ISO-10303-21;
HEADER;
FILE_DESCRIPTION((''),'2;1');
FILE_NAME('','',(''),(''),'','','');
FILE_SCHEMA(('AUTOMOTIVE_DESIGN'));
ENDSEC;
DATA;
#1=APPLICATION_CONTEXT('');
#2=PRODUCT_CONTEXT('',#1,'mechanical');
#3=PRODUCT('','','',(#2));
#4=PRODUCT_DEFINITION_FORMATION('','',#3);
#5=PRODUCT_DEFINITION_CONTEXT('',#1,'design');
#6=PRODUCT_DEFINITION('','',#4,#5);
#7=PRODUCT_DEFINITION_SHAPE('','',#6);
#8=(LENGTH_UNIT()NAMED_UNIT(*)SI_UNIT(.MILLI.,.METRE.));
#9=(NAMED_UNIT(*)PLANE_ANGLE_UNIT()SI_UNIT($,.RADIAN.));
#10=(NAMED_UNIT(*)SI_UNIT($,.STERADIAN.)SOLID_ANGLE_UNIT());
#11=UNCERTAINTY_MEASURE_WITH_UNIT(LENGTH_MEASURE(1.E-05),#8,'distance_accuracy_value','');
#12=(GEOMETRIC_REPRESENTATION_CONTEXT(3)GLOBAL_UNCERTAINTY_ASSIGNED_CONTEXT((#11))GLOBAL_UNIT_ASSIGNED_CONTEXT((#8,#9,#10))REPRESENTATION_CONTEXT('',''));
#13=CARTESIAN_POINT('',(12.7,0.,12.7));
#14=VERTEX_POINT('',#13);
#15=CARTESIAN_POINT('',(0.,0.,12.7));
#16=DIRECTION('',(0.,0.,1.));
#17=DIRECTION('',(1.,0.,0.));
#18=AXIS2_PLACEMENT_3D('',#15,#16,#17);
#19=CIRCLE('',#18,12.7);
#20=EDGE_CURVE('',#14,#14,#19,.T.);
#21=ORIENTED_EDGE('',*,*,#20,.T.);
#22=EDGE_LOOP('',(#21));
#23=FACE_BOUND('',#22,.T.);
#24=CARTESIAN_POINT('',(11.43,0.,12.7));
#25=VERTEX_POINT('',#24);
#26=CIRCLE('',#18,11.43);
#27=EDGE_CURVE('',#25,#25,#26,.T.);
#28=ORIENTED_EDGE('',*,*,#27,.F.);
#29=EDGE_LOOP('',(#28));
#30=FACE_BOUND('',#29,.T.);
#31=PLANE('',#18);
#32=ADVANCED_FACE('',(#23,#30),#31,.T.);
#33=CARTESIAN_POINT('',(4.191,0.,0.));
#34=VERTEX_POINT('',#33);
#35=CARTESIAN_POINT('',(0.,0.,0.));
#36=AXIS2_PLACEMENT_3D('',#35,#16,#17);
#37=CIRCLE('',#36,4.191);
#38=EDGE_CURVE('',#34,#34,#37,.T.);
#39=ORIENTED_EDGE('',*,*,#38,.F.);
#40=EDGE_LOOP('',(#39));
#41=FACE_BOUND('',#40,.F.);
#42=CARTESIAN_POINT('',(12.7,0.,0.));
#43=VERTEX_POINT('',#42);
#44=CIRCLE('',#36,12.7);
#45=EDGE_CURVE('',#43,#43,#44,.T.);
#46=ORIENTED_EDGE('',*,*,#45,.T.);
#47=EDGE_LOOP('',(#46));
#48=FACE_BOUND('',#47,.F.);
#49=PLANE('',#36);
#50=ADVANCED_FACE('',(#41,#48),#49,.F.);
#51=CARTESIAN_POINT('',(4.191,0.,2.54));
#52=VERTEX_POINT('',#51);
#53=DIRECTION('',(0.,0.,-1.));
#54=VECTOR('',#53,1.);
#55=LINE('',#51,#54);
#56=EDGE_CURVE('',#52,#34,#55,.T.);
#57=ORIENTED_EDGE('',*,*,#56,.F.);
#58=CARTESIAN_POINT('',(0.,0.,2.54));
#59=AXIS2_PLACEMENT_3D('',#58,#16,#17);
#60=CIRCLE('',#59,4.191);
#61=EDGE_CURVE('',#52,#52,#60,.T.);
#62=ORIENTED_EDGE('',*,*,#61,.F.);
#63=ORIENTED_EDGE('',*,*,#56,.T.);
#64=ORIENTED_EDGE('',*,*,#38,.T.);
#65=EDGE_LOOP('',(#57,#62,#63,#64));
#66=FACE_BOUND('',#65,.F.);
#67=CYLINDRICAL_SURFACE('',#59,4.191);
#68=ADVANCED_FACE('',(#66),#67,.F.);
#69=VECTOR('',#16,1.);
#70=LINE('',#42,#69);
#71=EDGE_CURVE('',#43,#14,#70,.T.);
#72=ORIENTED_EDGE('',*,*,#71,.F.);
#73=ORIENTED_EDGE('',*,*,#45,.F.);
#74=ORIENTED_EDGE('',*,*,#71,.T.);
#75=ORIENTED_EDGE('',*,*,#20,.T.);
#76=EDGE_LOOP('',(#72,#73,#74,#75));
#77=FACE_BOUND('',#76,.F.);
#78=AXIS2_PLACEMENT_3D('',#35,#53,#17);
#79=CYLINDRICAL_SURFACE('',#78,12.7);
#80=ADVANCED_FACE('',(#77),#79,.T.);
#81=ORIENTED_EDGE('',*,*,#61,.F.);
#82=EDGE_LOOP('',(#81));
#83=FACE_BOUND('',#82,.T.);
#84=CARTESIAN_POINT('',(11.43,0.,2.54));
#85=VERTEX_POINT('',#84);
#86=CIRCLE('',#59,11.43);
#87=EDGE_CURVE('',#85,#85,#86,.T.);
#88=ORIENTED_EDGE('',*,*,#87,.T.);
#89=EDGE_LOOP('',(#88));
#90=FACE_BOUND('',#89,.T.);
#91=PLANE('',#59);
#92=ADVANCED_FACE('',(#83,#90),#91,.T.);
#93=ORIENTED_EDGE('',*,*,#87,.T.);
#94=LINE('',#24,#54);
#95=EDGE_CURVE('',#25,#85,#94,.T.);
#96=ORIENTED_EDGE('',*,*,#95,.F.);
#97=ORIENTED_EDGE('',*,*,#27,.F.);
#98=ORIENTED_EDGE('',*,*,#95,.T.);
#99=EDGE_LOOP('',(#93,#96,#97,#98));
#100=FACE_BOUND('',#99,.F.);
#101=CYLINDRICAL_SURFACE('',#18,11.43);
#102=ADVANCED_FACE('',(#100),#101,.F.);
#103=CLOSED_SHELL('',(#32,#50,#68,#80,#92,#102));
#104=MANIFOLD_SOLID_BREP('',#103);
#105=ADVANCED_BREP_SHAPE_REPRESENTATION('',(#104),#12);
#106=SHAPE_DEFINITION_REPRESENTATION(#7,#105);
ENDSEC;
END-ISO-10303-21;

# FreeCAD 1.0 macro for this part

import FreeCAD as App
import Part
import Sketcher

V = App.Vector
Q = App.Units.Quantity

doc = App.newDocument("Part")
body = doc.addObject("PartDesign::Body", "Body")

# Sketch on XY plane
sketch1 = doc.addObject("Sketcher::SketchObject", "Sketch")
body.addObject(sketch1)
sketch1.AttachmentSupport = (doc.XY_Plane, [""])
sketch1.MapMode = "FlatFace"
sketch1.addGeometry(Part.Circle(V(0, 0, 0), V(0, 0, 1), 13), False)
sketch1.addConstraint(Sketcher.Constraint("Coincident", 0, 3, -1, 1))
sketch1.addConstraint(Sketcher.Constraint("Diameter", 0, Q("1 in")))
pad1 = doc.addObject("PartDesign::Pad", "Pad")
body.addObject(pad1)
pad1.Profile = sketch1
pad1.Length = Q("0.5 in")

# Sketch on XY plane
sketch2 = doc.addObject("Sketcher::SketchObject", "Sketch001")
body.addObject(sketch2)
sketch2.AttachmentSupport = (doc.XY_Plane, [""])
sketch2.MapMode = "FlatFace"
sketch2.AttachmentOffset = App.Placement(V(0, 0, 0.5 * 25.4), App.Rotation())
sketch2.addGeometry(Part.Circle(V(0, 0, 0), V(0, 0, 1), 11), False)
sketch2.addConstraint(Sketcher.Constraint("Coincident", 0, 3, -1, 1))
sketch2.addConstraint(Sketcher.Constraint("Diameter", 0, Q("0.9 in")))
pocket1 = doc.addObject("PartDesign::Pocket", "Pocket")
body.addObject(pocket1)
pocket1.Profile = sketch2
pocket1.Length = Q("0.4 in")

# Sketch on XY plane
sketch3 = doc.addObject("Sketcher::SketchObject", "Sketch002")
body.addObject(sketch3)
sketch3.AttachmentSupport = (doc.XY_Plane, [""])
sketch3.MapMode = "FlatFace"
sketch3.AttachmentOffset = App.Placement(V(0, 0, 0.1 * 25.4), App.Rotation())
sketch3.addGeometry(Part.Circle(V(0, 0, 0), V(0, 0, 1), 4.2), False)
sketch3.addConstraint(Sketcher.Constraint("Coincident", 0, 3, -1, 1))
sketch3.addConstraint(Sketcher.Constraint("Diameter", 0, Q("0.33 in")))
pocket2 = doc.addObject("PartDesign::Pocket", "Pocket001")
body.addObject(pocket2)
pocket2.Profile = sketch3
pocket2.Type = "ThroughAll"

doc.recompute()
